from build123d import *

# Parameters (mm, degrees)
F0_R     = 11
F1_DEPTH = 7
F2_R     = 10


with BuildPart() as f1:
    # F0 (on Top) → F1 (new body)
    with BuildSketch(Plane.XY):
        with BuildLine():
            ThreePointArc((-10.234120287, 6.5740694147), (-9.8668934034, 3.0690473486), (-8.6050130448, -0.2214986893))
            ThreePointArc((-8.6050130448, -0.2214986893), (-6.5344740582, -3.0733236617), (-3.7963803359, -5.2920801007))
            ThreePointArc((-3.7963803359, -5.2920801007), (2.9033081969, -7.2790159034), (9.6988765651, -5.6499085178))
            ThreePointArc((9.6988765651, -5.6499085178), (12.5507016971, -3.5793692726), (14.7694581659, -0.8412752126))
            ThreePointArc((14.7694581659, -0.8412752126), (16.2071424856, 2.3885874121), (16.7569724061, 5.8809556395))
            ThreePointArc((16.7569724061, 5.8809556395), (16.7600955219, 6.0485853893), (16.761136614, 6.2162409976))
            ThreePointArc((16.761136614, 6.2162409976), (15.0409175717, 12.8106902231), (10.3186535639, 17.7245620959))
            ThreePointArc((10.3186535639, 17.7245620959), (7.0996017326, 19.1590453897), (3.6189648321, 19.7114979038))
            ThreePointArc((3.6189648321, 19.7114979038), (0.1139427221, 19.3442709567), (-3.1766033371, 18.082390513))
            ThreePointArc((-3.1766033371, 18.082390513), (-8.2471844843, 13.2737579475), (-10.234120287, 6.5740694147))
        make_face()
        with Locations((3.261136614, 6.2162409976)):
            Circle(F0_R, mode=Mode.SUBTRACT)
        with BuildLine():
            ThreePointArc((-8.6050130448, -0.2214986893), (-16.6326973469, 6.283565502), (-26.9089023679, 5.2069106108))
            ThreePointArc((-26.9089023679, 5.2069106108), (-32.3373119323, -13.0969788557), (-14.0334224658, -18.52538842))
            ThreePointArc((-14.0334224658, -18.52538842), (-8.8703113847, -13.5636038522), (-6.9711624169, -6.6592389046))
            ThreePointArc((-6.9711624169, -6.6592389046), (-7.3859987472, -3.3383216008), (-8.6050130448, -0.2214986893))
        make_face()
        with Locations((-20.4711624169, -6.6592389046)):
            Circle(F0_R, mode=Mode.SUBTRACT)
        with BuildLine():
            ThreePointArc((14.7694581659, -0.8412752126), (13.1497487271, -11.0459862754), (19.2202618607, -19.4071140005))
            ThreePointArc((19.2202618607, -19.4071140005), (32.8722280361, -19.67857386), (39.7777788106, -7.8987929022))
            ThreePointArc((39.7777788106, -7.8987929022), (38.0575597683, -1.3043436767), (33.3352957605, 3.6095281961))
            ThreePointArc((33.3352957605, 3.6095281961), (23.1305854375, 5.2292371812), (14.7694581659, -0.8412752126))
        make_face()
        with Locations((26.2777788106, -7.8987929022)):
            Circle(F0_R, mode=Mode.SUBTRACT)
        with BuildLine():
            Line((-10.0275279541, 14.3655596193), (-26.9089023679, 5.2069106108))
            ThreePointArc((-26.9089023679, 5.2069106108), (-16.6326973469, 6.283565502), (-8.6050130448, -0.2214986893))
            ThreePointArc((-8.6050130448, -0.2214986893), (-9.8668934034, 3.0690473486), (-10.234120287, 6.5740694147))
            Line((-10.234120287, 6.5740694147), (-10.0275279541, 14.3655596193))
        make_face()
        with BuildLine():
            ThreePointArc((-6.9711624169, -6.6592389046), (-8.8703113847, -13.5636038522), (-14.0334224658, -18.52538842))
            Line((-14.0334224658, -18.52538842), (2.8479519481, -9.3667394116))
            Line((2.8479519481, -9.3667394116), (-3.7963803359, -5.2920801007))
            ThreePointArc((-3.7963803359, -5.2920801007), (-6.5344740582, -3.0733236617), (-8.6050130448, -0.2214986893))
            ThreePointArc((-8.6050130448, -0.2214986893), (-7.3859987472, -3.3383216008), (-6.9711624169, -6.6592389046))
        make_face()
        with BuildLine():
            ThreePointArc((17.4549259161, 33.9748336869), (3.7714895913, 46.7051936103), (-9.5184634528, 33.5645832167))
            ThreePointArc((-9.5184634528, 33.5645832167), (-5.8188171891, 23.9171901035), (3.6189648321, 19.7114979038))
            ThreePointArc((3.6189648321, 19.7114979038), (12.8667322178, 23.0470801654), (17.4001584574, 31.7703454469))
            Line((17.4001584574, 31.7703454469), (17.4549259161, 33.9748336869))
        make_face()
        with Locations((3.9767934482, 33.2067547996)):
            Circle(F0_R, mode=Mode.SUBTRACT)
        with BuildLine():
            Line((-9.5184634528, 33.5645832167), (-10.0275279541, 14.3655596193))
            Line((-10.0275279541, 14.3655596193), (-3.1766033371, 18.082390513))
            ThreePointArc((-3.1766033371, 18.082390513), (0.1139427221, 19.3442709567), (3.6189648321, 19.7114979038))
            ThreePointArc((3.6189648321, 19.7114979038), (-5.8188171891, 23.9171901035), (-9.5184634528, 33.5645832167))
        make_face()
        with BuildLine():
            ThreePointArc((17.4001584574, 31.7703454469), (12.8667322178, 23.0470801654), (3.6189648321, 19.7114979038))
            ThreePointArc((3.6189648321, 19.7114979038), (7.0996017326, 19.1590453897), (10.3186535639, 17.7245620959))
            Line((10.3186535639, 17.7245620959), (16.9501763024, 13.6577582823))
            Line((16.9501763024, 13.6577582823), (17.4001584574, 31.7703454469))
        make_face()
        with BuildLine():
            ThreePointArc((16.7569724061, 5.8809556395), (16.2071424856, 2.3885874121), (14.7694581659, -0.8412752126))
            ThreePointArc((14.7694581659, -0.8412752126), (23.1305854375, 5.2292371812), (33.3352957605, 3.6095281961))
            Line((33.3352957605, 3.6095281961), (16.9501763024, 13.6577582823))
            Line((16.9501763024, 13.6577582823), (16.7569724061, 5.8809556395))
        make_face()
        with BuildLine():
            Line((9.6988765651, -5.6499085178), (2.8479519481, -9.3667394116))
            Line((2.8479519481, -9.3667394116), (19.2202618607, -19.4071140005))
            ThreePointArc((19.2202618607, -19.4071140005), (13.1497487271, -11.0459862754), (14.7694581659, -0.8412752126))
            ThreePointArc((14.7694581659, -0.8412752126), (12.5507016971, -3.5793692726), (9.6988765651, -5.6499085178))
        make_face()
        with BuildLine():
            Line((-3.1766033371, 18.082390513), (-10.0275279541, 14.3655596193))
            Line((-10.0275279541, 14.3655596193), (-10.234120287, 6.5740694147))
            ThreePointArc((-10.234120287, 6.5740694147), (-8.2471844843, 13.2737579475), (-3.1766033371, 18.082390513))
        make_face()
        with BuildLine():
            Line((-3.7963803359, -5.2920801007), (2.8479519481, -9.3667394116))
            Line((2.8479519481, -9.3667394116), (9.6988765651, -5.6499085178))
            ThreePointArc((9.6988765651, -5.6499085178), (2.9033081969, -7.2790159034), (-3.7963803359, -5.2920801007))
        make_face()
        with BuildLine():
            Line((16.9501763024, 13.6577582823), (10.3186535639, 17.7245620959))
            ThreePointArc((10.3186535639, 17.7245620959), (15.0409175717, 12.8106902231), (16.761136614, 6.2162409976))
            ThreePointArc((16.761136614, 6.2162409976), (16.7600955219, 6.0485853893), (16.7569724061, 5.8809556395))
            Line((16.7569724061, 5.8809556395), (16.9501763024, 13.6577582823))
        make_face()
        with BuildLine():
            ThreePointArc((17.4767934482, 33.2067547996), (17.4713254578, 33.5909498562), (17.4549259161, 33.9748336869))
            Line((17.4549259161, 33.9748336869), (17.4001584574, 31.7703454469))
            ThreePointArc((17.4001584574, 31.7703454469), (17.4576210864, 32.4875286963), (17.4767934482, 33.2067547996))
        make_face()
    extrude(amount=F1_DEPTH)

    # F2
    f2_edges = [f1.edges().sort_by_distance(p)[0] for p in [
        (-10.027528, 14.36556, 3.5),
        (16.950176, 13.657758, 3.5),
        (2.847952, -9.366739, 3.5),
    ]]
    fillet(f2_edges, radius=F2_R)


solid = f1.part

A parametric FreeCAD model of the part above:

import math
import FreeCAD as App
import Part
import Sketcher
from FreeCAD import Vector
Q = App.Units.Quantity


def edges_at(feature, points):
    """Names of the edges that pass closest to the given points."""
    edges = feature.Shape.Edges
    near = lambda p: min(range(len(edges)), key=lambda i: edges[i].distToShape(Part.Vertex(*p))[0])
    return sorted({f"Edge{near(p) + 1}" for p in points})

doc = App.newDocument("Part")
params = doc.addObject("Spreadsheet::Sheet", "Params")
for row, (alias, value) in enumerate([
    ("sketch1_diameter", "22 mm"),
    ("sketch1_radius", "13.5 mm"),
    ("pad1_length", "7 mm"),
    ("fillet_radius", "10 mm"),
], start=1):
    params.set(f"A{row}", alias)
    params.set(f"B{row}", "=" + value)
    params.setAlias(f"B{row}", alias)

body = doc.addObject("PartDesign::Body", "Body")

sketch1 = body.newObject("Sketcher::SketchObject", "Sketch")
sketch1.AttachmentSupport = (doc.getObject("XY_Plane"), [""])
sketch1.MapMode = "FlatFace"
sketch1.addGeometry(Part.LineSegment(Vector(33.335296, 3.609528, 0), Vector(16.950176, 13.657758, 0)), False)
sketch1.addGeometry(Part.LineSegment(Vector(16.950176, 13.657758, 0), Vector(17.400158, 31.770345, 0)), False)
sketch1.addGeometry(Part.ArcOfCircle(Part.Circle(Vector(3.976793, 33.206755, 0), Vector(0, 0, 1), 13.5), math.radians(-6.107872), math.radians(0)), False)
sketch1.addGeometry(Part.ArcOfCircle(Part.Circle(Vector(3.976793, 33.206755, 0), Vector(0, 0, 1), 13.5), math.radians(0), math.radians(3.261589)), False)
sketch1.addGeometry(Part.ArcOfCircle(Part.Circle(Vector(3.976793, 33.206755, 0), Vector(0, 0, 1), 13.5), math.radians(3.261589), math.radians(178.481151)), False)
sketch1.addGeometry(Part.LineSegment(Vector(-9.518463, 33.564583, 0), Vector(-10.027528, 14.36556, 0)), False)
sketch1.addGeometry(Part.LineSegment(Vector(-10.027528, 14.36556, 0), Vector(-26.908902, 5.206911, 0)), False)
sketch1.addGeometry(Part.ArcOfCircle(Part.Circle(Vector(-20.471162, -6.659239, 0), Vector(0, 0, 1), 13.5), math.radians(118.481151), math.radians(298.481151)), False)
sketch1.addGeometry(Part.LineSegment(Vector(-14.033422, -18.525388, 0), Vector(2.847952, -9.366739, 0)), False)
sketch1.addGeometry(Part.LineSegment(Vector(2.847952, -9.366739, 0), Vector(19.220262, -19.407114, 0)), False)
sketch1.addGeometry(Part.ArcOfCircle(Part.Circle(Vector(26.277779, -7.898793, 0), Vector(0, 0, 1), 13.5), math.radians(-121.518849), math.radians(0)), False)
sketch1.addGeometry(Part.ArcOfCircle(Part.Circle(Vector(26.277779, -7.898793, 0), Vector(0, 0, 1), 13.5), math.radians(0), math.radians(58.481151)), False)
sketch1.addGeometry(Part.Circle(Vector(-20.471162, -6.659239, 0), Vector(0, 0, 1), 11), False)
sketch1.addGeometry(Part.Circle(Vector(26.277779, -7.898793, 0), Vector(0, 0, 1), 11), False)
sketch1.addGeometry(Part.Circle(Vector(3.261137, 6.216241, 0), Vector(0, 0, 1), 11), False)
sketch1.addGeometry(Part.Circle(Vector(3.976793, 33.206755, 0), Vector(0, 0, 1), 11), False)
sketch1.addConstraint(Sketcher.Constraint("Coincident", 0, 2, 1, 1))
sketch1.addConstraint(Sketcher.Constraint("Coincident", 1, 2, 2, 1))
sketch1.addConstraint(Sketcher.Constraint("Tangent", 2, 2, 3, 1))
sketch1.addConstraint(Sketcher.Constraint("Tangent", 3, 2, 4, 1))
sketch1.addConstraint(Sketcher.Constraint("Tangent", 4, 2, 5, 1))
sketch1.addConstraint(Sketcher.Constraint("Coincident", 5, 2, 6, 1))
sketch1.addConstraint(Sketcher.Constraint("Tangent", 6, 2, 7, 1))
sketch1.addConstraint(Sketcher.Constraint("Tangent", 7, 2, 8, 1))
sketch1.addConstraint(Sketcher.Constraint("Coincident", 8, 2, 9, 1))
sketch1.addConstraint(Sketcher.Constraint("Tangent", 9, 2, 10, 1))
sketch1.addConstraint(Sketcher.Constraint("Tangent", 10, 2, 11, 1))
sketch1.addConstraint(Sketcher.Constraint("Tangent", 11, 2, 0, 1))
sketch1.addConstraint(Sketcher.Constraint("Coincident", 4, 3, 2, 3))
sketch1.addConstraint(Sketcher.Constraint("Coincident", 12, 3, 7, 3))
sketch1.addConstraint(Sketcher.Constraint("Coincident", 13, 3, 10, 3))
sketch1.addConstraint(Sketcher.Constraint("Coincident", 15, 3, 2, 3))
sketch1.addConstraint(Sketcher.Constraint("Equal", 4, 7))
sketch1.addConstraint(Sketcher.Constraint("Equal", 7, 10))
sketch1.addConstraint(Sketcher.Constraint("Equal", 10, 11))
sketch1.addConstraint(Sketcher.Constraint("Equal", 12, 13))
sketch1.addConstraint(Sketcher.Constraint("Equal", 13, 14))
sketch1.addConstraint(Sketcher.Constraint("Equal", 14, 15))
sketch1.addConstraint(Sketcher.Constraint("Parallel", 6, 8))
sketch1.addConstraint(Sketcher.Constraint("Parallel", 0, 9))
sketch1.addConstraint(Sketcher.Constraint("Horizontal", 15, 3, 2, 2))
sketch1.addConstraint(Sketcher.Constraint("Horizontal", 13, 3, 10, 2))
sketch1.addConstraint(Sketcher.Constraint("Equal", 5, 6))
sketch1.addConstraint(Sketcher.Constraint("Equal", 6, 8))
sketch1.addConstraint(Sketcher.Constraint("Equal", 8, 9))
sketch1.addConstraint(Sketcher.Constraint("Diameter", 12, Q("22 mm")))
sketch1.addConstraint(Sketcher.Constraint("Radius", 2, Q("13.5 mm")))
sketch1.addConstraint(Sketcher.Constraint("DistanceY", 7, 3, 5, 2, Q("21.024799 mm")))
sketch1.addConstraint(Sketcher.Constraint("DistanceY", 7, 2, 6, 2, Q("23.732299 mm")))
sketch1.addConstraint(Sketcher.Constraint("DistanceY", 7, 3, -1, 1, Q("6.659239 mm")))
sketch1.addConstraint(Sketcher.Constraint("DistanceX", -1, 1, 10, 3, Q("26.277779 mm")))
sketch1.addConstraint(Sketcher.Constraint("DistanceY", -1, 1, 14, 3, Q("6.216241 mm")))
sketch1.addConstraint(Sketcher.Constraint("DistanceY", -1, 1, 0, 2, Q("13.657758 mm")))
sketch1.addConstraint(Sketcher.Constraint("DistanceX", -1, 1, 1, 2, Q("17.400158 mm")))
sketch1.addConstraint(Sketcher.Constraint("DistanceX", -1, 1, 8, 2, Q("2.847952 mm")))
sketch1.addConstraint(Sketcher.Constraint("DistanceX", 14, 3, 0, 2, Q("13.68904 mm")))
sketch1.addConstraint(Sketcher.Constraint("DistanceY", 1, 2, 4, 3, Q("1.436409 mm")))
sketch1.addConstraint(Sketcher.Constraint("DistanceY", 2, 2, 3, 2, Q("0.768079 mm")))
sketch1.setExpression("Constraints[29]", "Params.sketch1_diameter")
sketch1.setExpression("Constraints[30]", "Params.sketch1_radius")
pad1 = body.newObject("PartDesign::Pad", "Pad")
pad1.Profile = sketch1
pad1.setExpression("Length", "Params.pad1_length")
doc.recompute()

fillet = body.newObject("PartDesign::Fillet", "Fillet")
fillet.Base = (pad1, edges_at(pad1, [(-10.028, 14.366, 3.5), (16.95, 13.658, 3.5), (2.848, -9.367, 3.5)]))
fillet.setExpression("Radius", "Params.fillet_radius")

doc.recompute()
